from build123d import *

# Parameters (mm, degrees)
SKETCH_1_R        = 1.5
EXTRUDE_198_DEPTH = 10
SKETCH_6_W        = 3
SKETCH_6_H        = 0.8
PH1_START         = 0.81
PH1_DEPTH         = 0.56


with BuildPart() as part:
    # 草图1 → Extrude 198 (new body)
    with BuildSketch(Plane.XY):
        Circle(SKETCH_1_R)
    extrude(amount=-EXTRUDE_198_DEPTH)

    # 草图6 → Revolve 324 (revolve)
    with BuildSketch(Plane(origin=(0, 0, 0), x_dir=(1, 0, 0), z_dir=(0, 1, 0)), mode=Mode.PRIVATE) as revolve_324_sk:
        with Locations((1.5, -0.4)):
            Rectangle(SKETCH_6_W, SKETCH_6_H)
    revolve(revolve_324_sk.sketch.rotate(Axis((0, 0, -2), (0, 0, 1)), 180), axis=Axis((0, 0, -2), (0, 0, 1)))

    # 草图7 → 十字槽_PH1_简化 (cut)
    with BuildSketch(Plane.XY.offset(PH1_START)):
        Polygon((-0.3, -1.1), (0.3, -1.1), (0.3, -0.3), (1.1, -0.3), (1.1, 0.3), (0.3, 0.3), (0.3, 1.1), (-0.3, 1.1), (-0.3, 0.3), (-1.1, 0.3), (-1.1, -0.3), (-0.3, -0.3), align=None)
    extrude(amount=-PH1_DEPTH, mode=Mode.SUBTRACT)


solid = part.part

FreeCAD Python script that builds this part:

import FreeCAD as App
import Part
import Sketcher

V = App.Vector
Q = App.Units.Quantity


def add_polygon(sketch, points):
    """Adds a closed chain of lines whose ends are joined by coincident constraints."""
    first, n = sketch.GeometryCount, len(points)
    for a, b in zip(points, points[1:] + points[:1]):
        sketch.addGeometry(Part.LineSegment(App.Vector(*a, 0), App.Vector(*b, 0)), False)
    for i in range(n):
        sketch.addConstraint(Sketcher.Constraint("Coincident", first + i, 2, first + (i + 1) % n, 1))

doc = App.newDocument("Part")
params = doc.addObject("Spreadsheet::Sheet", "Params")
for row, (alias, value) in enumerate([
    ("sketch1_diameter", "3 mm"),
    ("pad1_length", "10 mm"),
    ("sketch2_width", "3 mm"),
    ("sketch2_height", "0.8 mm"),
    ("revolution_angle", "360 deg"),
    ("sketch3_width", "0.6 mm"),
    ("sketch3_width2", "0.8 mm"),
    ("pocket1_length", "0.56 mm"),
], start=1):
    params.set(f"A{row}", alias)
    params.set(f"B{row}", "=" + value)
    params.setAlias(f"B{row}", alias)

body = doc.addObject("PartDesign::Body", "Body")

# Sketch on XY plane
sketch1 = body.newObject("Sketcher::SketchObject", "Sketch")
sketch1.AttachmentSupport = (doc.getObject("XY_Plane"), [""])
sketch1.MapMode = "FlatFace"
sketch1.addGeometry(Part.Circle(V(0, 0, 0), V(0, 0, 1), 1.5), False)
sketch1.addConstraint([
    Sketcher.Constraint("Coincident", 0, 3, -1, 1),
    Sketcher.Constraint("Diameter", 0, Q("3 mm")),
])
sketch1.setExpression("Constraints[1]", "Params.sketch1_diameter")
pad1 = body.newObject("PartDesign::Pad", "Pad")
pad1.Profile = sketch1
pad1.setExpression("Length", "Params.pad1_length")
pad1.Reversed = True

# Sketch on XZ plane
sketch2 = body.newObject("Sketcher::SketchObject", "Sketch001")
sketch2.AttachmentSupport = (doc.getObject("XZ_Plane"), [""])
sketch2.MapMode = "FlatFace"
add_polygon(sketch2, [(0, 0), (0, 0.8), (3, 0.8), (3, 0)])  # lines 0-3
sketch2.addConstraint([
    Sketcher.Constraint("Vertical", 0),
    Sketcher.Constraint("Horizontal", 1),
    Sketcher.Constraint("Vertical", 2),
    Sketcher.Constraint("Horizontal", 3),
    Sketcher.Constraint("Coincident", 3, 2, -1, 1),
    Sketcher.Constraint("DistanceX", 1, 1, 1, 2, Q("3 mm")),
    Sketcher.Constraint("DistanceY", 0, 1, 0, 2, Q("0.8 mm")),
])
sketch2.setExpression("Constraints[9]", "Params.sketch2_width")
sketch2.setExpression("Constraints[10]", "Params.sketch2_height")
revolution = body.newObject("PartDesign::Revolution", "Revolution")
revolution.Profile = sketch2
revolution.ReferenceAxis = (sketch2, ["V_Axis"])
revolution.setExpression("Angle", "Params.revolution_angle")

# Sketch on XY plane
sketch3 = body.newObject("Sketcher::SketchObject", "Sketch002")
sketch3.AttachmentSupport = (doc.getObject("XY_Plane"), [""])
sketch3.MapMode = "FlatFace"
sketch3.AttachmentOffset = App.Placement(V(0, 0, 0.81), App.Rotation())
add_polygon(sketch3, [(-0.3, -1.1), (0.3, -1.1), (0.3, -0.3), (1.1, -0.3), (1.1, 0.3), (0.3, 0.3), (0.3, 1.1), (-0.3, 1.1), (-0.3, 0.3), (-1.1, 0.3), (-1.1, -0.3), (-0.3, -0.3)])  # lines 0-11
sketch3.addConstraint([
    Sketcher.Constraint("Horizontal", 0),
    Sketcher.Constraint("Vertical", 1),
    Sketcher.Constraint("Horizontal", 2),
    Sketcher.Constraint("Vertical", 3),
    Sketcher.Constraint("Horizontal", 4),
    Sketcher.Constraint("Vertical", 5),
    Sketcher.Constraint("Horizontal", 6),
    Sketcher.Constraint("Vertical", 7),
    Sketcher.Constraint("Horizontal", 8),
    Sketcher.Constraint("Vertical", 9),
    Sketcher.Constraint("Horizontal", 10),
    Sketcher.Constraint("Vertical", 11),
    Sketcher.Constraint("Symmetric", 0, 2, 6, 2, -1, 1),
    Sketcher.Constraint("Symmetric", 2, 2, 8, 2, -1, 1),
    Sketcher.Constraint("Symmetric", 4, 2, 10, 2, -1, 1),
    Sketcher.Constraint("Symmetric", 4, 2, 7, 2, -2),
    Sketcher.Constraint("Equal", 10, 1),
    Sketcher.Constraint("Equal", 6, 3),
    Sketcher.Constraint("DistanceX", 0, 1, 0, 2, Q("0.6 mm")),
    Sketcher.Constraint("DistanceX", 2, 1, 2, 2, Q("0.8 mm")),
])
sketch3.setExpression("Constraints[30]", "Params.sketch3_width")
sketch3.setExpression("Constraints[31]", "Params.sketch3_width2")
pocket1 = body.newObject("PartDesign::Pocket", "Pocket")
pocket1.Profile = sketch3
pocket1.setExpression("Length", "Params.pocket1_length")

doc.recompute()
